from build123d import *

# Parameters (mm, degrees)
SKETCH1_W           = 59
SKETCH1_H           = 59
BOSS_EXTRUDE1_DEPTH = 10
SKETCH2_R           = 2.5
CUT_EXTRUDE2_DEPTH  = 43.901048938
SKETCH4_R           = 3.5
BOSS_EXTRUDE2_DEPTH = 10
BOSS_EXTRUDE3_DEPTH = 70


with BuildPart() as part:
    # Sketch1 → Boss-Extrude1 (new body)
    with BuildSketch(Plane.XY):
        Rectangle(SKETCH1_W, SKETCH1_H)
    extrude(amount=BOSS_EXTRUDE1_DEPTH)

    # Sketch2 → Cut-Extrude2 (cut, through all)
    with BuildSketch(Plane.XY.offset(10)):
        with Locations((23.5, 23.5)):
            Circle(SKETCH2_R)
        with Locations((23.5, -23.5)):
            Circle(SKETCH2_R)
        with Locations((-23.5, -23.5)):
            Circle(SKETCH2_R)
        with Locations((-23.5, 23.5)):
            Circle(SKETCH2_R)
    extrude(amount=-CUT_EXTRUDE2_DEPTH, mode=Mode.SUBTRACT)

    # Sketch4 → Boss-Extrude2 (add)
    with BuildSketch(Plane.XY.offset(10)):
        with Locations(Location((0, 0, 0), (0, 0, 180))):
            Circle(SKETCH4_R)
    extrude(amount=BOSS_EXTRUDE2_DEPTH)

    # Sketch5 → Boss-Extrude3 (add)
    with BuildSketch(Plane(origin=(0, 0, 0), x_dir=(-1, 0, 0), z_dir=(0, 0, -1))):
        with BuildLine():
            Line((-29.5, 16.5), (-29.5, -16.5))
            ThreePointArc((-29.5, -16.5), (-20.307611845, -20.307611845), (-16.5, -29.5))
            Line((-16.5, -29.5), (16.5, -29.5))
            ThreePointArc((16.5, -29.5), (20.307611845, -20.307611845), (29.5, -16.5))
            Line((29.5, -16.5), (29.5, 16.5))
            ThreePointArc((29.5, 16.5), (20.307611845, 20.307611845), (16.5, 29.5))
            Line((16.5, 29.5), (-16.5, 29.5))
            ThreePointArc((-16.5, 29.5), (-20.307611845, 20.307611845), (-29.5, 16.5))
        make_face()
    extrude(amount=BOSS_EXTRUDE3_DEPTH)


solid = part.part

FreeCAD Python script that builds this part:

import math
import FreeCAD as App
import Part
import Sketcher

V = App.Vector
Q = App.Units.Quantity

doc = App.newDocument("Part")
body = doc.addObject("PartDesign::Body", "Body")

# Sketch on XY plane
sketch1 = body.newObject("Sketcher::SketchObject", "Sketch")
sketch1.AttachmentSupport = (doc.getObject("XY_Plane"), [""])
sketch1.MapMode = "FlatFace"
sketch1.addGeometry(Part.LineSegment(V(-30, 30, 0), V(-30, -30, 0)), False)
sketch1.addGeometry(Part.LineSegment(V(-30, -30, 0), V(30, -30, 0)), False)
sketch1.addGeometry(Part.LineSegment(V(30, -30, 0), V(30, 30, 0)), False)
sketch1.addGeometry(Part.LineSegment(V(30, 30, 0), V(-30, 30, 0)), False)
sketch1.addConstraint(Sketcher.Constraint("Coincident", 0, 2, 1, 1))
sketch1.addConstraint(Sketcher.Constraint("Coincident", 1, 2, 2, 1))
sketch1.addConstraint(Sketcher.Constraint("Coincident", 2, 2, 3, 1))
sketch1.addConstraint(Sketcher.Constraint("Coincident", 3, 2, 0, 1))
sketch1.addConstraint(Sketcher.Constraint("Vertical", 0))
sketch1.addConstraint(Sketcher.Constraint("Horizontal", 1))
sketch1.addConstraint(Sketcher.Constraint("Vertical", 2))
sketch1.addConstraint(Sketcher.Constraint("Horizontal", 3))
sketch1.addConstraint(Sketcher.Constraint("Symmetric", 0, 2, 2, 2, -1, 1))
sketch1.addConstraint(Sketcher.Constraint("Equal", 3, 0))
sketch1.addConstraint(Sketcher.Constraint("DistanceX", 1, 1, 1, 2, Q("59 mm")))
pad1 = body.newObject("PartDesign::Pad", "Pad")
pad1.Profile = sketch1
pad1.Length = 10

# Sketch on XY plane
sketch2 = body.newObject("Sketcher::SketchObject", "Sketch001")
sketch2.AttachmentSupport = (doc.getObject("XY_Plane"), [""])
sketch2.MapMode = "FlatFace"
sketch2.AttachmentOffset = App.Placement(V(0, 0, 10), App.Rotation())
sketch2.addGeometry(Part.Circle(V(23.5, 23.5, 0), V(0, 0, 1), 2.5), False)
sketch2.addGeometry(Part.Circle(V(23.5, -23.5, 0), V(0, 0, 1), 2.5), False)
sketch2.addGeometry(Part.Circle(V(-23.5, -23.5, 0), V(0, 0, 1), 2.5), False)
sketch2.addGeometry(Part.Circle(V(-23.5, 23.5, 0), V(0, 0, 1), 2.5), False)
sketch2.addConstraint(Sketcher.Constraint("Equal", 0, 1))
sketch2.addConstraint(Sketcher.Constraint("Equal", 1, 2))
sketch2.addConstraint(Sketcher.Constraint("Equal", 2, 3))
sketch2.addConstraint(Sketcher.Constraint("Symmetric", 0, 3, 2, 3, -1, 1))
sketch2.addConstraint(Sketcher.Constraint("Symmetric", 1, 3, 3, 3, -1, 1))
sketch2.addConstraint(Sketcher.Constraint("Symmetric", 1, 3, 2, 3, -2))
sketch2.addConstraint(Sketcher.Constraint("Diameter", 0, Q("5 mm")))
sketch2.addConstraint(Sketcher.Constraint("DistanceY", 1, 3, 0, 3, Q("47 mm")))
sketch2.addConstraint(Sketcher.Constraint("DistanceX", 2, 3, 1, 3, Q("47 mm")))
pocket1 = body.newObject("PartDesign::Pocket", "Pocket")
pocket1.Profile = sketch2
pocket1.Type = "ThroughAll"

# Sketch on XY plane
sketch3 = body.newObject("Sketcher::SketchObject", "Sketch002")
sketch3.AttachmentSupport = (doc.getObject("XY_Plane"), [""])
sketch3.MapMode = "FlatFace"
sketch3.AttachmentOffset = App.Placement(V(0, 0, 10), App.Rotation())
sketch3.addGeometry(Part.Circle(V(0, 0, 0), V(0, 0, 1), 3.5), False)
sketch3.addConstraint(Sketcher.Constraint("Coincident", 0, 3, -1, 1))
sketch3.addConstraint(Sketcher.Constraint("Diameter", 0, Q("7 mm")))
pad2 = body.newObject("PartDesign::Pad", "Pad001")
pad2.Profile = sketch3
pad2.Length = 10

# Sketch on XY plane
sketch4 = body.newObject("Sketcher::SketchObject", "Sketch003")
sketch4.AttachmentSupport = (doc.getObject("XY_Plane"), [""])
sketch4.MapMode = "FlatFace"
sketch4.addGeometry(Part.LineSegment(V(30, 16, 0), V(30, -16, 0)), False)
sketch4.addGeometry(Part.ArcOfCircle(Part.Circle(V(30, -30, 0), V(0, 0, 1), 13), math.radians(90), math.radians(180)), False)
sketch4.addGeometry(Part.LineSegment(V(16, -30, 0), V(-16, -30, 0)), False)
sketch4.addGeometry(Part.ArcOfCircle(Part.Circle(V(-30, -30, 0), V(0, 0, 1), 13), math.radians(0), math.radians(90)), False)
sketch4.addGeometry(Part.LineSegment(V(-30, -16, 0), V(-30, 16, 0)), False)
sketch4.addGeometry(Part.ArcOfCircle(Part.Circle(V(-30, 30, 0), V(0, 0, 1), 13), math.radians(-90), math.radians(0)), False)
sketch4.addGeometry(Part.LineSegment(V(-16, 30, 0), V(16, 30, 0)), False)
sketch4.addGeometry(Part.ArcOfCircle(Part.Circle(V(30, 30, 0), V(0, 0, 1), 13), math.radians(-180), math.radians(-90)), False)
sketch4.addConstraint(Sketcher.Constraint("Coincident", 0, 2, 1, 1))
sketch4.addConstraint(Sketcher.Constraint("Coincident", 1, 2, 2, 1))
sketch4.addConstraint(Sketcher.Constraint("Coincident", 2, 2, 3, 1))
sketch4.addConstraint(Sketcher.Constraint("Coincident", 3, 2, 4, 1))
sketch4.addConstraint(Sketcher.Constraint("Coincident", 4, 2, 5, 1))
sketch4.addConstraint(Sketcher.Constraint("Coincident", 5, 2, 6, 1))
sketch4.addConstraint(Sketcher.Constraint("Coincident", 6, 2, 7, 1))
sketch4.addConstraint(Sketcher.Constraint("Coincident", 7, 2, 0, 1))
sketch4.addConstraint(Sketcher.Constraint("Vertical", 0))
sketch4.addConstraint(Sketcher.Constraint("Horizontal", 2))
sketch4.addConstraint(Sketcher.Constraint("Vertical", 4))
sketch4.addConstraint(Sketcher.Constraint("Horizontal", 6))
sketch4.addConstraint(Sketcher.Constraint("Equal", 1, 3))
sketch4.addConstraint(Sketcher.Constraint("Equal", 3, 5))
sketch4.addConstraint(Sketcher.Constraint("Equal", 5, 7))
sketch4.addConstraint(Sketcher.Constraint("Symmetric", 1, 3, 5, 3, -1, 1))
sketch4.addConstraint(Sketcher.Constraint("Symmetric", 3, 3, 7, 3, -1, 1))
sketch4.addConstraint(Sketcher.Constraint("Symmetric", 1, 3, 3, 3, -2))
sketch4.addConstraint(Sketcher.Constraint("Horizontal", 3, 3, 1, 2))
sketch4.addConstraint(Sketcher.Constraint("Horizontal", 7, 3, 5, 2))
sketch4.addConstraint(Sketcher.Constraint("Vertical", 7, 3, 0, 2))
sketch4.addConstraint(Sketcher.Constraint("Vertical", 5, 3, 3, 2))
sketch4.addConstraint(Sketcher.Constraint("Equal", 6, 0))
sketch4.addConstraint(Sketcher.Constraint("Radius", 1, Q("13 mm")))
sketch4.addConstraint(Sketcher.Constraint("DistanceX", 2, 2, 2, 1, Q("33 mm")))
pad3 = body.newObject("PartDesign::Pad", "Pad002")
pad3.Profile = sketch4
pad3.Length = 70
pad3.Reversed = True

doc.recompute()
